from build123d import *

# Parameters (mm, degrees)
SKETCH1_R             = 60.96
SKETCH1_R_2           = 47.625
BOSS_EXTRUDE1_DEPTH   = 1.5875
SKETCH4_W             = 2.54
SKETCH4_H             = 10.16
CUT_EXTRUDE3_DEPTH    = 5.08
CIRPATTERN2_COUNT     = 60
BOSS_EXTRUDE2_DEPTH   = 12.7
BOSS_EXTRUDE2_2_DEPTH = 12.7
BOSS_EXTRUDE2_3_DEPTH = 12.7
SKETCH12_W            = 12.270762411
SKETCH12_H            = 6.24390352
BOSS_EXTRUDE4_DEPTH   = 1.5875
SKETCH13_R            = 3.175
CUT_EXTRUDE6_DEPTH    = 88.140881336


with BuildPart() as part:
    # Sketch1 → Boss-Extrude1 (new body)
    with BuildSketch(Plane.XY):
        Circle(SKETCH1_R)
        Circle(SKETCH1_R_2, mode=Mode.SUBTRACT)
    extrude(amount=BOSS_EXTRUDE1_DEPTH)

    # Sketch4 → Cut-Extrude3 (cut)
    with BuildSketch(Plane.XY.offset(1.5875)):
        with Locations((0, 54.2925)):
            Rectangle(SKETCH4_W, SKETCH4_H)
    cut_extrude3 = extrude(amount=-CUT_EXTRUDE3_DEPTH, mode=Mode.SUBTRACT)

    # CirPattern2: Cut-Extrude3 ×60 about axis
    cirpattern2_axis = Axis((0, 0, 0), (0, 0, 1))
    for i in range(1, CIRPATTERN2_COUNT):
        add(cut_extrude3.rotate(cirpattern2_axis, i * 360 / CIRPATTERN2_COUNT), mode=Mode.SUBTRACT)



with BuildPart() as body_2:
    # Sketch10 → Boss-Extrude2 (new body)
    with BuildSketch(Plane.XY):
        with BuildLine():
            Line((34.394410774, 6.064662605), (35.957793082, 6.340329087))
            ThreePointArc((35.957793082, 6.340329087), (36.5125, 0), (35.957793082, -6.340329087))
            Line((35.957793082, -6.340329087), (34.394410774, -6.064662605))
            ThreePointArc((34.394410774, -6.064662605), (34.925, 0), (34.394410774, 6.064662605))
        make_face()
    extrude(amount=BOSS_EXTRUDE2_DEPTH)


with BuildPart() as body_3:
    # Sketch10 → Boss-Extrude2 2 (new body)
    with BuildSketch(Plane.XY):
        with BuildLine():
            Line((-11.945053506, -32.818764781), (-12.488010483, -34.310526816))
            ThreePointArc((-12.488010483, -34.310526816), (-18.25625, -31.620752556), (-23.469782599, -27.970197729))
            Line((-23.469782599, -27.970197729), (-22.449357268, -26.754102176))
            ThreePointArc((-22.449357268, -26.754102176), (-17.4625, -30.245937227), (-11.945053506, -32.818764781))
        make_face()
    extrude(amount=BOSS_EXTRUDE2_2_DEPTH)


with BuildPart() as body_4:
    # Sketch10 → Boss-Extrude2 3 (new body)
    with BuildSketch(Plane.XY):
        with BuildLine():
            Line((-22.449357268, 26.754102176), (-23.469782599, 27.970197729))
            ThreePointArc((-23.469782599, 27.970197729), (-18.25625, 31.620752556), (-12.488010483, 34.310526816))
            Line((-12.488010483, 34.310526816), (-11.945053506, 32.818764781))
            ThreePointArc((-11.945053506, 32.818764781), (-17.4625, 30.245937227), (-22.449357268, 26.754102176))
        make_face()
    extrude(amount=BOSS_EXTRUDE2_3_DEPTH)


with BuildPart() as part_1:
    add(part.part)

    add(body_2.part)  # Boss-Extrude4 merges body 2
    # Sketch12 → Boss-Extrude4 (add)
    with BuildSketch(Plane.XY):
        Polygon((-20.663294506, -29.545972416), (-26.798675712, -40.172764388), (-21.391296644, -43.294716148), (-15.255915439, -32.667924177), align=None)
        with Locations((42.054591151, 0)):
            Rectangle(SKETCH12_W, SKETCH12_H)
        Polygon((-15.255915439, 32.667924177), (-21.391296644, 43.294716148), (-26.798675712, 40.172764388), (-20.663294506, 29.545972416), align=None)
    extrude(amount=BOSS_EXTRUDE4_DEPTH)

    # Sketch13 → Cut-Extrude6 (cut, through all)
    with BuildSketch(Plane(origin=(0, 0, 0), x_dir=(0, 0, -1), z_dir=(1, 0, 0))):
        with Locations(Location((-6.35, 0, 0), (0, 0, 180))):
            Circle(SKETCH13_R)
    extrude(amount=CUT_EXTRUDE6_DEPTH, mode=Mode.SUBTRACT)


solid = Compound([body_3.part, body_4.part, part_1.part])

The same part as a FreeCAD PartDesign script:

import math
import FreeCAD as App
import Part
import Sketcher
Q = App.Units.Quantity

doc = App.newDocument("Part")
params = doc.addObject("Spreadsheet::Sheet", "Params")
for row, (alias, value) in enumerate([
    ("sketch1_diameter", "4.8 in"),
    ("sketch1_diameter2", "3.75 in"),
    ("pad1_length", "0.0625 in"),
    ("sketch2_width", "0.1 in"),
    ("sketch2_height", "0.4 in"),
    ("pocket1_length", "0.2 in"),
    ("sketch3_radius", "1.375 in"),
    ("sketch3_radius2", "1.4375 in"),
    ("pad2_length", "0.5 in"),
    ("sketch4_radius", "1.375 in"),
    ("sketch4_radius2", "1.4375 in"),
    ("pad3_length", "0.5 in"),
    ("sketch5_radius", "1.375 in"),
    ("sketch5_radius2", "1.4375 in"),
    ("pad4_length", "0.5 in"),
    ("pad5_length", "0.0625 in"),
    ("sketch7_diameter", "0.25 in"),
], start=1):
    params.set(f"A{row}", alias)
    params.set(f"B{row}", "=" + value)
    params.setAlias(f"B{row}", alias)

body = doc.addObject("PartDesign::Body", "Body")

sketch1 = doc.addObject("Sketcher::SketchObject", "Sketch")
body.addObject(sketch1)
sketch1.AttachmentSupport = (doc.XY_Plane, [""])
sketch1.MapMode = "FlatFace"
sketch1.addGeometry(Part.Circle(App.Vector(0, 0, 0), App.Vector(0, 0, 1), 60.96), False)
sketch1.addGeometry(Part.Circle(App.Vector(0, 0, 0), App.Vector(0, 0, 1), 47.625), False)
sketch1.addConstraint(Sketcher.Constraint("Coincident", 0, 3, -1, 1))
sketch1.addConstraint(Sketcher.Constraint("Coincident", 1, 3, -1, 1))
sketch1.addConstraint(Sketcher.Constraint("Diameter", 0, Q("4.8 in")))
sketch1.addConstraint(Sketcher.Constraint("Diameter", 1, Q("3.75 in")))
sketch1.setExpression("Constraints[2]", "Params.sketch1_diameter")
sketch1.setExpression("Constraints[3]", "Params.sketch1_diameter2")
pad1 = doc.addObject("PartDesign::Pad", "Pad")
body.addObject(pad1)
pad1.Profile = sketch1
pad1.setExpression("Length", "Params.pad1_length")

sketch2 = doc.addObject("Sketcher::SketchObject", "Sketch001")
body.addObject(sketch2)
sketch2.AttachmentSupport = (doc.XY_Plane, [""])
sketch2.MapMode = "FlatFace"
sketch2.AttachmentOffset = App.Placement(App.Vector(0, 0, 0.0625 * 25.4), App.Rotation())
sketch2.addGeometry(Part.LineSegment(App.Vector(-1.27, 59.3725, 0), App.Vector(-1.27, 49.2125, 0)), False)
sketch2.addGeometry(Part.LineSegment(App.Vector(-1.27, 49.2125, 0), App.Vector(1.27, 49.2125, 0)), False)
sketch2.addGeometry(Part.LineSegment(App.Vector(1.27, 49.2125, 0), App.Vector(1.27, 59.3725, 0)), False)
sketch2.addGeometry(Part.LineSegment(App.Vector(1.27, 59.3725, 0), App.Vector(-1.27, 59.3725, 0)), False)
sketch2.addConstraint(Sketcher.Constraint("Coincident", 0, 2, 1, 1))
sketch2.addConstraint(Sketcher.Constraint("Coincident", 1, 2, 2, 1))
sketch2.addConstraint(Sketcher.Constraint("Coincident", 2, 2, 3, 1))
sketch2.addConstraint(Sketcher.Constraint("Coincident", 3, 2, 0, 1))
sketch2.addConstraint(Sketcher.Constraint("Vertical", 0))
sketch2.addConstraint(Sketcher.Constraint("Horizontal", 1))
sketch2.addConstraint(Sketcher.Constraint("Vertical", 2))
sketch2.addConstraint(Sketcher.Constraint("Horizontal", 3))
sketch2.addConstraint(Sketcher.Constraint("DistanceX", 1, 1, 1, 2, Q("0.1 in")))
sketch2.addConstraint(Sketcher.Constraint("DistanceY", 0, 2, 0, 1, Q("0.4 in")))
sketch2.addConstraint(Sketcher.Constraint("DistanceX", 0, 2, -1, 1, Q("0.05 in")))
sketch2.addConstraint(Sketcher.Constraint("DistanceY", -1, 1, 0, 2, Q("1.9375 in")))
sketch2.setExpression("Constraints[8]", "Params.sketch2_width")
sketch2.setExpression("Constraints[9]", "Params.sketch2_height")
pocket1 = doc.addObject("PartDesign::Pocket", "Pocket")
body.addObject(pocket1)
pocket1.Profile = sketch2
pocket1.setExpression("Length", "Params.pocket1_length")
doc.recompute()

polarpattern = doc.addObject("PartDesign::PolarPattern", "PolarPattern")
body.addObject(polarpattern)
polarpattern.Originals = [pocket1]
polarpattern.Axis = (doc.Z_Axis, [""])
polarpattern.Angle = 360
polarpattern.Occurrences = 60
body.Tip = polarpattern
body2 = doc.addObject("PartDesign::Body", "Body001")

sketch3 = doc.addObject("Sketcher::SketchObject", "Sketch002")
body2.addObject(sketch3)
sketch3.AttachmentSupport = (doc.getObject("XY_Plane001"), [""])
sketch3.MapMode = "FlatFace"
sketch3.addGeometry(Part.LineSegment(App.Vector(35.957793, 6.340329, 0), App.Vector(34.394411, 6.064663, 0)), False)
sketch3.addGeometry(Part.ArcOfCircle(Part.Circle(App.Vector(0, 0, 0), App.Vector(0, 0, 1), 34.925), math.radians(-10), math.radians(10)), False)
sketch3.addGeometry(Part.LineSegment(App.Vector(34.394411, -6.064663, 0), App.Vector(35.957793, -6.340329, 0)), False)
sketch3.addGeometry(Part.ArcOfCircle(Part.Circle(App.Vector(0, 0, 0), App.Vector(0, 0, 1), 36.5125), math.radians(-10), math.radians(10)), False)
sketch3.addConstraint(Sketcher.Constraint("Coincident", 0, 2, 1, 2))
sketch3.addConstraint(Sketcher.Constraint("Coincident", 1, 1, 2, 1))
sketch3.addConstraint(Sketcher.Constraint("Coincident", 2, 2, 3, 1))
sketch3.addConstraint(Sketcher.Constraint("Coincident", 3, 2, 0, 1))
sketch3.addConstraint(Sketcher.Constraint("Coincident", 1, 3, -1, 1))
sketch3.addConstraint(Sketcher.Constraint("Coincident", 3, 3, -1, 1))
sketch3.addConstraint(Sketcher.Constraint("Vertical", 0, 2, 1, 1))
sketch3.addConstraint(Sketcher.Constraint("Vertical", 2, 2, 3, 2))
sketch3.addConstraint(Sketcher.Constraint("Angle", 0, Q("-170 deg")))
sketch3.addConstraint(Sketcher.Constraint("Radius", 1, Q("1.375 in")))
sketch3.addConstraint(Sketcher.Constraint("Radius", 3, Q("1.4375 in")))
sketch3.addConstraint(Sketcher.Constraint("DistanceX", -1, 1, 0, 2, Q("34.394411 mm")))
sketch3.setExpression("Constraints[9]", "Params.sketch3_radius")
sketch3.setExpression("Constraints[10]", "Params.sketch3_radius2")
pad2 = doc.addObject("PartDesign::Pad", "Pad001")
body2.addObject(pad2)
pad2.Profile = sketch3
pad2.setExpression("Length", "Params.pad2_length")
body3 = doc.addObject("PartDesign::Body", "Body002")

sketch4 = doc.addObject("Sketcher::SketchObject", "Sketch003")
body3.addObject(sketch4)
sketch4.AttachmentSupport = (doc.getObject("XY_Plane002"), [""])
sketch4.MapMode = "FlatFace"
sketch4.addGeometry(Part.LineSegment(App.Vector(-12.48801, -34.310527, 0), App.Vector(-11.945054, -32.818765, 0)), False)
sketch4.addGeometry(Part.ArcOfCircle(Part.Circle(App.Vector(0, 0, 0), App.Vector(0, 0, 1), 34.925), math.radians(-130), math.radians(-110)), False)
sketch4.addGeometry(Part.LineSegment(App.Vector(-22.449357, -26.754102, 0), App.Vector(-23.469783, -27.970198, 0)), False)
sketch4.addGeometry(Part.ArcOfCircle(Part.Circle(App.Vector(0, 0, 0), App.Vector(0, 0, 1), 36.5125), math.radians(-130), math.radians(-110)), False)
sketch4.addConstraint(Sketcher.Constraint("Coincident", 0, 2, 1, 2))
sketch4.addConstraint(Sketcher.Constraint("Coincident", 1, 1, 2, 1))
sketch4.addConstraint(Sketcher.Constraint("Coincident", 2, 2, 3, 1))
sketch4.addConstraint(Sketcher.Constraint("Coincident", 3, 2, 0, 1))
sketch4.addConstraint(Sketcher.Constraint("Coincident", 1, 3, -1, 1))
sketch4.addConstraint(Sketcher.Constraint("Coincident", 3, 3, -1, 1))
sketch4.addConstraint(Sketcher.Constraint("Angle", 0, Q("70 deg")))
sketch4.addConstraint(Sketcher.Constraint("Angle", 2, Q("-130 deg")))
sketch4.addConstraint(Sketcher.Constraint("Radius", 1, Q("1.375 in")))
sketch4.addConstraint(Sketcher.Constraint("Radius", 3, Q("1.4375 in")))
sketch4.addConstraint(Sketcher.Constraint("DistanceX", 3, 2, -1, 1, Q("12.48801 mm")))
sketch4.addConstraint(Sketcher.Constraint("DistanceX", 2, 2, 0, 2, Q("11.524729 mm")))
sketch4.setExpression("Constraints[8]", "Params.sketch4_radius")
sketch4.setExpression("Constraints[9]", "Params.sketch4_radius2")
pad3 = doc.addObject("PartDesign::Pad", "Pad002")
body3.addObject(pad3)
pad3.Profile = sketch4
pad3.setExpression("Length", "Params.pad3_length")
body4 = doc.addObject("PartDesign::Body", "Body003")

sketch5 = doc.addObject("Sketcher::SketchObject", "Sketch004")
body4.addObject(sketch5)
sketch5.AttachmentSupport = (doc.getObject("XY_Plane003"), [""])
sketch5.MapMode = "FlatFace"
sketch5.addGeometry(Part.LineSegment(App.Vector(-23.469783, 27.970198, 0), App.Vector(-22.449357, 26.754102, 0)), False)
sketch5.addGeometry(Part.ArcOfCircle(Part.Circle(App.Vector(0, 0, 0), App.Vector(0, 0, 1), 34.925), math.radians(110), math.radians(130)), False)
sketch5.addGeometry(Part.LineSegment(App.Vector(-11.945054, 32.818765, 0), App.Vector(-12.48801, 34.310527, 0)), False)
sketch5.addGeometry(Part.ArcOfCircle(Part.Circle(App.Vector(0, 0, 0), App.Vector(0, 0, 1), 36.5125), math.radians(110), math.radians(130)), False)
sketch5.addConstraint(Sketcher.Constraint("Coincident", 0, 2, 1, 2))
sketch5.addConstraint(Sketcher.Constraint("Coincident", 1, 1, 2, 1))
sketch5.addConstraint(Sketcher.Constraint("Coincident", 2, 2, 3, 1))
sketch5.addConstraint(Sketcher.Constraint("Coincident", 3, 2, 0, 1))
sketch5.addConstraint(Sketcher.Constraint("Coincident", 1, 3, -1, 1))
sketch5.addConstraint(Sketcher.Constraint("Coincident", 3, 3, -1, 1))
sketch5.addConstraint(Sketcher.Constraint("Angle", 0, Q("-50 deg")))
sketch5.addConstraint(Sketcher.Constraint("Angle", 2, Q("110 deg")))
sketch5.addConstraint(Sketcher.Constraint("Radius", 1, Q("1.375 in")))
sketch5.addConstraint(Sketcher.Constraint("Radius", 3, Q("1.4375 in")))
sketch5.addConstraint(Sketcher.Constraint("DistanceX", 2, 2, -1, 1, Q("12.48801 mm")))
sketch5.addConstraint(Sketcher.Constraint("DistanceX", 3, 2, 1, 1, Q("11.524729 mm")))
sketch5.setExpression("Constraints[8]", "Params.sketch5_radius")
sketch5.setExpression("Constraints[9]", "Params.sketch5_radius2")
pad4 = doc.addObject("PartDesign::Pad", "Pad003")
body4.addObject(pad4)
pad4.Profile = sketch5
pad4.setExpression("Length", "Params.pad4_length")
body.AllowCompound = True
doc.recompute()

boolean = doc.addObject("PartDesign::Boolean", "Boolean")
body.addObject(boolean)
boolean.Type = "Fuse"
boolean.addObjects([body2])

sketch6 = doc.addObject("Sketcher::SketchObject", "Sketch005")
body.addObject(sketch6)
sketch6.AttachmentSupport = (doc.XY_Plane, [""])
sketch6.MapMode = "FlatFace"
sketch6.addGeometry(Part.LineSegment(App.Vector(-20.663295, -29.545972, 0), App.Vector(-26.798676, -40.172764, 0)), False)
sketch6.addGeometry(Part.LineSegment(App.Vector(-26.798676, -40.172764, 0), App.Vector(-21.391297, -43.294716, 0)), False)
sketch6.addGeometry(Part.LineSegment(App.Vector(-21.391297, -43.294716, 0), App.Vector(-15.255915, -32.667924, 0)), False)
sketch6.addGeometry(Part.LineSegment(App.Vector(-15.255915, -32.667924, 0), App.Vector(-20.663295, -29.545972, 0)), False)
sketch6.addGeometry(Part.LineSegment(App.Vector(35.91921, 3.121952, 0), App.Vector(35.91921, -3.121952, 0)), False)
sketch6.addGeometry(Part.LineSegment(App.Vector(35.91921, -3.121952, 0), App.Vector(48.189972, -3.121952, 0)), False)
sketch6.addGeometry(Part.LineSegment(App.Vector(48.189972, -3.121952, 0), App.Vector(48.189972, 3.121952, 0)), False)
sketch6.addGeometry(Part.LineSegment(App.Vector(48.189972, 3.121952, 0), App.Vector(35.91921, 3.121952, 0)), False)
sketch6.addGeometry(Part.LineSegment(App.Vector(-15.255915, 32.667924, 0), App.Vector(-21.391297, 43.294716, 0)), False)
sketch6.addGeometry(Part.LineSegment(App.Vector(-21.391297, 43.294716, 0), App.Vector(-26.798676, 40.172764, 0)), False)
sketch6.addGeometry(Part.LineSegment(App.Vector(-26.798676, 40.172764, 0), App.Vector(-20.663295, 29.545972, 0)), False)
sketch6.addGeometry(Part.LineSegment(App.Vector(-20.663295, 29.545972, 0), App.Vector(-15.255915, 32.667924, 0)), False)
sketch6.addConstraint(Sketcher.Constraint("Coincident", 0, 2, 1, 1))
sketch6.addConstraint(Sketcher.Constraint("Coincident", 1, 2, 2, 1))
sketch6.addConstraint(Sketcher.Constraint("Coincident", 2, 2, 3, 1))
sketch6.addConstraint(Sketcher.Constraint("Coincident", 3, 2, 0, 1))
sketch6.addConstraint(Sketcher.Constraint("Coincident", 4, 2, 5, 1))
sketch6.addConstraint(Sketcher.Constraint("Coincident", 5, 2, 6, 1))
sketch6.addConstraint(Sketcher.Constraint("Coincident", 6, 2, 7, 1))
sketch6.addConstraint(Sketcher.Constraint("Coincident", 7, 2, 4, 1))
sketch6.addConstraint(Sketcher.Constraint("Coincident", 8, 2, 9, 1))
sketch6.addConstraint(Sketcher.Constraint("Coincident", 9, 2, 10, 1))
sketch6.addConstraint(Sketcher.Constraint("Coincident", 10, 2, 11, 1))
sketch6.addConstraint(Sketcher.Constraint("Coincident", 11, 2, 8, 1))
sketch6.addConstraint(Sketcher.Constraint("Vertical", 4))
sketch6.addConstraint(Sketcher.Constraint("Horizontal", 5))
sketch6.addConstraint(Sketcher.Constraint("Vertical", 6))
sketch6.addConstraint(Sketcher.Constraint("Horizontal", 7))
sketch6.addConstraint(Sketcher.Constraint("Symmetric", 1, 2, 8, 2, -1))
sketch6.addConstraint(Sketcher.Constraint("Symmetric", 0, 2, 9, 2, -1))
sketch6.addConstraint(Sketcher.Constraint("Symmetric", 3, 2, 10, 2, -1))
sketch6.addConstraint(Sketcher.Constraint("Symmetric", 2, 2, 11, 2, -1))
sketch6.addConstraint(Sketcher.Constraint("Perpendicular", 0, 1))
sketch6.addConstraint(Sketcher.Constraint("Perpendicular", 1, 2))
sketch6.addConstraint(Sketcher.Constraint("Perpendicular", 2, 3))
sketch6.addConstraint(Sketcher.Constraint("Angle", 0, Q("-120 deg")))
sketch6.addConstraint(Sketcher.Constraint("DistanceX", 5, 1, 5, 2, Q("12.270762 mm")))
sketch6.addConstraint(Sketcher.Constraint("DistanceY", 4, 2, 4, 1, Q("6.243904 mm")))
sketch6.addConstraint(Sketcher.Constraint("DistanceX", -1, 1, 4, 2, Q("35.91921 mm")))
sketch6.addConstraint(Sketcher.Constraint("DistanceY", 4, 2, -1, 1, Q("3.121952 mm")))
sketch6.addConstraint(Sketcher.Constraint("DistanceX", 0, 2, 1, 2, Q("5.407379 mm")))
sketch6.addConstraint(Sketcher.Constraint("DistanceX", 1, 2, 2, 2, Q("6.135381 mm")))
sketch6.addConstraint(Sketcher.Constraint("DistanceY", 3, 2, 4, 2, Q("26.424021 mm")))
sketch6.addConstraint(Sketcher.Constraint("DistanceX", 1, 2, 5, 2, Q("69.581269 mm")))
pad5 = doc.addObject("PartDesign::Pad", "Pad004")
body.addObject(pad5)
pad5.Profile = sketch6
pad5.setExpression("Length", "Params.pad5_length")

sketch7 = doc.addObject("Sketcher::SketchObject", "Sketch006")
body.addObject(sketch7)
sketch7.AttachmentSupport = (doc.YZ_Plane, [""])
sketch7.MapMode = "FlatFace"
sketch7.addGeometry(Part.Circle(App.Vector(0, 6.35, 0), App.Vector(0, 0, 1), 3.175), False)
sketch7.addConstraint(Sketcher.Constraint("PointOnObject", 0, 3, -2))
sketch7.addConstraint(Sketcher.Constraint("Diameter", 0, Q("0.25 in")))
sketch7.addConstraint(Sketcher.Constraint("DistanceY", -1, 1, 0, 3, Q("0.25 in")))
sketch7.setExpression("Constraints[1]", "Params.sketch7_diameter")
pocket2 = doc.addObject("PartDesign::Pocket", "Pocket001")
body.addObject(pocket2)
pocket2.Profile = sketch7
pocket2.Type = "ThroughAll"
pocket2.Reversed = True

doc.recompute()
